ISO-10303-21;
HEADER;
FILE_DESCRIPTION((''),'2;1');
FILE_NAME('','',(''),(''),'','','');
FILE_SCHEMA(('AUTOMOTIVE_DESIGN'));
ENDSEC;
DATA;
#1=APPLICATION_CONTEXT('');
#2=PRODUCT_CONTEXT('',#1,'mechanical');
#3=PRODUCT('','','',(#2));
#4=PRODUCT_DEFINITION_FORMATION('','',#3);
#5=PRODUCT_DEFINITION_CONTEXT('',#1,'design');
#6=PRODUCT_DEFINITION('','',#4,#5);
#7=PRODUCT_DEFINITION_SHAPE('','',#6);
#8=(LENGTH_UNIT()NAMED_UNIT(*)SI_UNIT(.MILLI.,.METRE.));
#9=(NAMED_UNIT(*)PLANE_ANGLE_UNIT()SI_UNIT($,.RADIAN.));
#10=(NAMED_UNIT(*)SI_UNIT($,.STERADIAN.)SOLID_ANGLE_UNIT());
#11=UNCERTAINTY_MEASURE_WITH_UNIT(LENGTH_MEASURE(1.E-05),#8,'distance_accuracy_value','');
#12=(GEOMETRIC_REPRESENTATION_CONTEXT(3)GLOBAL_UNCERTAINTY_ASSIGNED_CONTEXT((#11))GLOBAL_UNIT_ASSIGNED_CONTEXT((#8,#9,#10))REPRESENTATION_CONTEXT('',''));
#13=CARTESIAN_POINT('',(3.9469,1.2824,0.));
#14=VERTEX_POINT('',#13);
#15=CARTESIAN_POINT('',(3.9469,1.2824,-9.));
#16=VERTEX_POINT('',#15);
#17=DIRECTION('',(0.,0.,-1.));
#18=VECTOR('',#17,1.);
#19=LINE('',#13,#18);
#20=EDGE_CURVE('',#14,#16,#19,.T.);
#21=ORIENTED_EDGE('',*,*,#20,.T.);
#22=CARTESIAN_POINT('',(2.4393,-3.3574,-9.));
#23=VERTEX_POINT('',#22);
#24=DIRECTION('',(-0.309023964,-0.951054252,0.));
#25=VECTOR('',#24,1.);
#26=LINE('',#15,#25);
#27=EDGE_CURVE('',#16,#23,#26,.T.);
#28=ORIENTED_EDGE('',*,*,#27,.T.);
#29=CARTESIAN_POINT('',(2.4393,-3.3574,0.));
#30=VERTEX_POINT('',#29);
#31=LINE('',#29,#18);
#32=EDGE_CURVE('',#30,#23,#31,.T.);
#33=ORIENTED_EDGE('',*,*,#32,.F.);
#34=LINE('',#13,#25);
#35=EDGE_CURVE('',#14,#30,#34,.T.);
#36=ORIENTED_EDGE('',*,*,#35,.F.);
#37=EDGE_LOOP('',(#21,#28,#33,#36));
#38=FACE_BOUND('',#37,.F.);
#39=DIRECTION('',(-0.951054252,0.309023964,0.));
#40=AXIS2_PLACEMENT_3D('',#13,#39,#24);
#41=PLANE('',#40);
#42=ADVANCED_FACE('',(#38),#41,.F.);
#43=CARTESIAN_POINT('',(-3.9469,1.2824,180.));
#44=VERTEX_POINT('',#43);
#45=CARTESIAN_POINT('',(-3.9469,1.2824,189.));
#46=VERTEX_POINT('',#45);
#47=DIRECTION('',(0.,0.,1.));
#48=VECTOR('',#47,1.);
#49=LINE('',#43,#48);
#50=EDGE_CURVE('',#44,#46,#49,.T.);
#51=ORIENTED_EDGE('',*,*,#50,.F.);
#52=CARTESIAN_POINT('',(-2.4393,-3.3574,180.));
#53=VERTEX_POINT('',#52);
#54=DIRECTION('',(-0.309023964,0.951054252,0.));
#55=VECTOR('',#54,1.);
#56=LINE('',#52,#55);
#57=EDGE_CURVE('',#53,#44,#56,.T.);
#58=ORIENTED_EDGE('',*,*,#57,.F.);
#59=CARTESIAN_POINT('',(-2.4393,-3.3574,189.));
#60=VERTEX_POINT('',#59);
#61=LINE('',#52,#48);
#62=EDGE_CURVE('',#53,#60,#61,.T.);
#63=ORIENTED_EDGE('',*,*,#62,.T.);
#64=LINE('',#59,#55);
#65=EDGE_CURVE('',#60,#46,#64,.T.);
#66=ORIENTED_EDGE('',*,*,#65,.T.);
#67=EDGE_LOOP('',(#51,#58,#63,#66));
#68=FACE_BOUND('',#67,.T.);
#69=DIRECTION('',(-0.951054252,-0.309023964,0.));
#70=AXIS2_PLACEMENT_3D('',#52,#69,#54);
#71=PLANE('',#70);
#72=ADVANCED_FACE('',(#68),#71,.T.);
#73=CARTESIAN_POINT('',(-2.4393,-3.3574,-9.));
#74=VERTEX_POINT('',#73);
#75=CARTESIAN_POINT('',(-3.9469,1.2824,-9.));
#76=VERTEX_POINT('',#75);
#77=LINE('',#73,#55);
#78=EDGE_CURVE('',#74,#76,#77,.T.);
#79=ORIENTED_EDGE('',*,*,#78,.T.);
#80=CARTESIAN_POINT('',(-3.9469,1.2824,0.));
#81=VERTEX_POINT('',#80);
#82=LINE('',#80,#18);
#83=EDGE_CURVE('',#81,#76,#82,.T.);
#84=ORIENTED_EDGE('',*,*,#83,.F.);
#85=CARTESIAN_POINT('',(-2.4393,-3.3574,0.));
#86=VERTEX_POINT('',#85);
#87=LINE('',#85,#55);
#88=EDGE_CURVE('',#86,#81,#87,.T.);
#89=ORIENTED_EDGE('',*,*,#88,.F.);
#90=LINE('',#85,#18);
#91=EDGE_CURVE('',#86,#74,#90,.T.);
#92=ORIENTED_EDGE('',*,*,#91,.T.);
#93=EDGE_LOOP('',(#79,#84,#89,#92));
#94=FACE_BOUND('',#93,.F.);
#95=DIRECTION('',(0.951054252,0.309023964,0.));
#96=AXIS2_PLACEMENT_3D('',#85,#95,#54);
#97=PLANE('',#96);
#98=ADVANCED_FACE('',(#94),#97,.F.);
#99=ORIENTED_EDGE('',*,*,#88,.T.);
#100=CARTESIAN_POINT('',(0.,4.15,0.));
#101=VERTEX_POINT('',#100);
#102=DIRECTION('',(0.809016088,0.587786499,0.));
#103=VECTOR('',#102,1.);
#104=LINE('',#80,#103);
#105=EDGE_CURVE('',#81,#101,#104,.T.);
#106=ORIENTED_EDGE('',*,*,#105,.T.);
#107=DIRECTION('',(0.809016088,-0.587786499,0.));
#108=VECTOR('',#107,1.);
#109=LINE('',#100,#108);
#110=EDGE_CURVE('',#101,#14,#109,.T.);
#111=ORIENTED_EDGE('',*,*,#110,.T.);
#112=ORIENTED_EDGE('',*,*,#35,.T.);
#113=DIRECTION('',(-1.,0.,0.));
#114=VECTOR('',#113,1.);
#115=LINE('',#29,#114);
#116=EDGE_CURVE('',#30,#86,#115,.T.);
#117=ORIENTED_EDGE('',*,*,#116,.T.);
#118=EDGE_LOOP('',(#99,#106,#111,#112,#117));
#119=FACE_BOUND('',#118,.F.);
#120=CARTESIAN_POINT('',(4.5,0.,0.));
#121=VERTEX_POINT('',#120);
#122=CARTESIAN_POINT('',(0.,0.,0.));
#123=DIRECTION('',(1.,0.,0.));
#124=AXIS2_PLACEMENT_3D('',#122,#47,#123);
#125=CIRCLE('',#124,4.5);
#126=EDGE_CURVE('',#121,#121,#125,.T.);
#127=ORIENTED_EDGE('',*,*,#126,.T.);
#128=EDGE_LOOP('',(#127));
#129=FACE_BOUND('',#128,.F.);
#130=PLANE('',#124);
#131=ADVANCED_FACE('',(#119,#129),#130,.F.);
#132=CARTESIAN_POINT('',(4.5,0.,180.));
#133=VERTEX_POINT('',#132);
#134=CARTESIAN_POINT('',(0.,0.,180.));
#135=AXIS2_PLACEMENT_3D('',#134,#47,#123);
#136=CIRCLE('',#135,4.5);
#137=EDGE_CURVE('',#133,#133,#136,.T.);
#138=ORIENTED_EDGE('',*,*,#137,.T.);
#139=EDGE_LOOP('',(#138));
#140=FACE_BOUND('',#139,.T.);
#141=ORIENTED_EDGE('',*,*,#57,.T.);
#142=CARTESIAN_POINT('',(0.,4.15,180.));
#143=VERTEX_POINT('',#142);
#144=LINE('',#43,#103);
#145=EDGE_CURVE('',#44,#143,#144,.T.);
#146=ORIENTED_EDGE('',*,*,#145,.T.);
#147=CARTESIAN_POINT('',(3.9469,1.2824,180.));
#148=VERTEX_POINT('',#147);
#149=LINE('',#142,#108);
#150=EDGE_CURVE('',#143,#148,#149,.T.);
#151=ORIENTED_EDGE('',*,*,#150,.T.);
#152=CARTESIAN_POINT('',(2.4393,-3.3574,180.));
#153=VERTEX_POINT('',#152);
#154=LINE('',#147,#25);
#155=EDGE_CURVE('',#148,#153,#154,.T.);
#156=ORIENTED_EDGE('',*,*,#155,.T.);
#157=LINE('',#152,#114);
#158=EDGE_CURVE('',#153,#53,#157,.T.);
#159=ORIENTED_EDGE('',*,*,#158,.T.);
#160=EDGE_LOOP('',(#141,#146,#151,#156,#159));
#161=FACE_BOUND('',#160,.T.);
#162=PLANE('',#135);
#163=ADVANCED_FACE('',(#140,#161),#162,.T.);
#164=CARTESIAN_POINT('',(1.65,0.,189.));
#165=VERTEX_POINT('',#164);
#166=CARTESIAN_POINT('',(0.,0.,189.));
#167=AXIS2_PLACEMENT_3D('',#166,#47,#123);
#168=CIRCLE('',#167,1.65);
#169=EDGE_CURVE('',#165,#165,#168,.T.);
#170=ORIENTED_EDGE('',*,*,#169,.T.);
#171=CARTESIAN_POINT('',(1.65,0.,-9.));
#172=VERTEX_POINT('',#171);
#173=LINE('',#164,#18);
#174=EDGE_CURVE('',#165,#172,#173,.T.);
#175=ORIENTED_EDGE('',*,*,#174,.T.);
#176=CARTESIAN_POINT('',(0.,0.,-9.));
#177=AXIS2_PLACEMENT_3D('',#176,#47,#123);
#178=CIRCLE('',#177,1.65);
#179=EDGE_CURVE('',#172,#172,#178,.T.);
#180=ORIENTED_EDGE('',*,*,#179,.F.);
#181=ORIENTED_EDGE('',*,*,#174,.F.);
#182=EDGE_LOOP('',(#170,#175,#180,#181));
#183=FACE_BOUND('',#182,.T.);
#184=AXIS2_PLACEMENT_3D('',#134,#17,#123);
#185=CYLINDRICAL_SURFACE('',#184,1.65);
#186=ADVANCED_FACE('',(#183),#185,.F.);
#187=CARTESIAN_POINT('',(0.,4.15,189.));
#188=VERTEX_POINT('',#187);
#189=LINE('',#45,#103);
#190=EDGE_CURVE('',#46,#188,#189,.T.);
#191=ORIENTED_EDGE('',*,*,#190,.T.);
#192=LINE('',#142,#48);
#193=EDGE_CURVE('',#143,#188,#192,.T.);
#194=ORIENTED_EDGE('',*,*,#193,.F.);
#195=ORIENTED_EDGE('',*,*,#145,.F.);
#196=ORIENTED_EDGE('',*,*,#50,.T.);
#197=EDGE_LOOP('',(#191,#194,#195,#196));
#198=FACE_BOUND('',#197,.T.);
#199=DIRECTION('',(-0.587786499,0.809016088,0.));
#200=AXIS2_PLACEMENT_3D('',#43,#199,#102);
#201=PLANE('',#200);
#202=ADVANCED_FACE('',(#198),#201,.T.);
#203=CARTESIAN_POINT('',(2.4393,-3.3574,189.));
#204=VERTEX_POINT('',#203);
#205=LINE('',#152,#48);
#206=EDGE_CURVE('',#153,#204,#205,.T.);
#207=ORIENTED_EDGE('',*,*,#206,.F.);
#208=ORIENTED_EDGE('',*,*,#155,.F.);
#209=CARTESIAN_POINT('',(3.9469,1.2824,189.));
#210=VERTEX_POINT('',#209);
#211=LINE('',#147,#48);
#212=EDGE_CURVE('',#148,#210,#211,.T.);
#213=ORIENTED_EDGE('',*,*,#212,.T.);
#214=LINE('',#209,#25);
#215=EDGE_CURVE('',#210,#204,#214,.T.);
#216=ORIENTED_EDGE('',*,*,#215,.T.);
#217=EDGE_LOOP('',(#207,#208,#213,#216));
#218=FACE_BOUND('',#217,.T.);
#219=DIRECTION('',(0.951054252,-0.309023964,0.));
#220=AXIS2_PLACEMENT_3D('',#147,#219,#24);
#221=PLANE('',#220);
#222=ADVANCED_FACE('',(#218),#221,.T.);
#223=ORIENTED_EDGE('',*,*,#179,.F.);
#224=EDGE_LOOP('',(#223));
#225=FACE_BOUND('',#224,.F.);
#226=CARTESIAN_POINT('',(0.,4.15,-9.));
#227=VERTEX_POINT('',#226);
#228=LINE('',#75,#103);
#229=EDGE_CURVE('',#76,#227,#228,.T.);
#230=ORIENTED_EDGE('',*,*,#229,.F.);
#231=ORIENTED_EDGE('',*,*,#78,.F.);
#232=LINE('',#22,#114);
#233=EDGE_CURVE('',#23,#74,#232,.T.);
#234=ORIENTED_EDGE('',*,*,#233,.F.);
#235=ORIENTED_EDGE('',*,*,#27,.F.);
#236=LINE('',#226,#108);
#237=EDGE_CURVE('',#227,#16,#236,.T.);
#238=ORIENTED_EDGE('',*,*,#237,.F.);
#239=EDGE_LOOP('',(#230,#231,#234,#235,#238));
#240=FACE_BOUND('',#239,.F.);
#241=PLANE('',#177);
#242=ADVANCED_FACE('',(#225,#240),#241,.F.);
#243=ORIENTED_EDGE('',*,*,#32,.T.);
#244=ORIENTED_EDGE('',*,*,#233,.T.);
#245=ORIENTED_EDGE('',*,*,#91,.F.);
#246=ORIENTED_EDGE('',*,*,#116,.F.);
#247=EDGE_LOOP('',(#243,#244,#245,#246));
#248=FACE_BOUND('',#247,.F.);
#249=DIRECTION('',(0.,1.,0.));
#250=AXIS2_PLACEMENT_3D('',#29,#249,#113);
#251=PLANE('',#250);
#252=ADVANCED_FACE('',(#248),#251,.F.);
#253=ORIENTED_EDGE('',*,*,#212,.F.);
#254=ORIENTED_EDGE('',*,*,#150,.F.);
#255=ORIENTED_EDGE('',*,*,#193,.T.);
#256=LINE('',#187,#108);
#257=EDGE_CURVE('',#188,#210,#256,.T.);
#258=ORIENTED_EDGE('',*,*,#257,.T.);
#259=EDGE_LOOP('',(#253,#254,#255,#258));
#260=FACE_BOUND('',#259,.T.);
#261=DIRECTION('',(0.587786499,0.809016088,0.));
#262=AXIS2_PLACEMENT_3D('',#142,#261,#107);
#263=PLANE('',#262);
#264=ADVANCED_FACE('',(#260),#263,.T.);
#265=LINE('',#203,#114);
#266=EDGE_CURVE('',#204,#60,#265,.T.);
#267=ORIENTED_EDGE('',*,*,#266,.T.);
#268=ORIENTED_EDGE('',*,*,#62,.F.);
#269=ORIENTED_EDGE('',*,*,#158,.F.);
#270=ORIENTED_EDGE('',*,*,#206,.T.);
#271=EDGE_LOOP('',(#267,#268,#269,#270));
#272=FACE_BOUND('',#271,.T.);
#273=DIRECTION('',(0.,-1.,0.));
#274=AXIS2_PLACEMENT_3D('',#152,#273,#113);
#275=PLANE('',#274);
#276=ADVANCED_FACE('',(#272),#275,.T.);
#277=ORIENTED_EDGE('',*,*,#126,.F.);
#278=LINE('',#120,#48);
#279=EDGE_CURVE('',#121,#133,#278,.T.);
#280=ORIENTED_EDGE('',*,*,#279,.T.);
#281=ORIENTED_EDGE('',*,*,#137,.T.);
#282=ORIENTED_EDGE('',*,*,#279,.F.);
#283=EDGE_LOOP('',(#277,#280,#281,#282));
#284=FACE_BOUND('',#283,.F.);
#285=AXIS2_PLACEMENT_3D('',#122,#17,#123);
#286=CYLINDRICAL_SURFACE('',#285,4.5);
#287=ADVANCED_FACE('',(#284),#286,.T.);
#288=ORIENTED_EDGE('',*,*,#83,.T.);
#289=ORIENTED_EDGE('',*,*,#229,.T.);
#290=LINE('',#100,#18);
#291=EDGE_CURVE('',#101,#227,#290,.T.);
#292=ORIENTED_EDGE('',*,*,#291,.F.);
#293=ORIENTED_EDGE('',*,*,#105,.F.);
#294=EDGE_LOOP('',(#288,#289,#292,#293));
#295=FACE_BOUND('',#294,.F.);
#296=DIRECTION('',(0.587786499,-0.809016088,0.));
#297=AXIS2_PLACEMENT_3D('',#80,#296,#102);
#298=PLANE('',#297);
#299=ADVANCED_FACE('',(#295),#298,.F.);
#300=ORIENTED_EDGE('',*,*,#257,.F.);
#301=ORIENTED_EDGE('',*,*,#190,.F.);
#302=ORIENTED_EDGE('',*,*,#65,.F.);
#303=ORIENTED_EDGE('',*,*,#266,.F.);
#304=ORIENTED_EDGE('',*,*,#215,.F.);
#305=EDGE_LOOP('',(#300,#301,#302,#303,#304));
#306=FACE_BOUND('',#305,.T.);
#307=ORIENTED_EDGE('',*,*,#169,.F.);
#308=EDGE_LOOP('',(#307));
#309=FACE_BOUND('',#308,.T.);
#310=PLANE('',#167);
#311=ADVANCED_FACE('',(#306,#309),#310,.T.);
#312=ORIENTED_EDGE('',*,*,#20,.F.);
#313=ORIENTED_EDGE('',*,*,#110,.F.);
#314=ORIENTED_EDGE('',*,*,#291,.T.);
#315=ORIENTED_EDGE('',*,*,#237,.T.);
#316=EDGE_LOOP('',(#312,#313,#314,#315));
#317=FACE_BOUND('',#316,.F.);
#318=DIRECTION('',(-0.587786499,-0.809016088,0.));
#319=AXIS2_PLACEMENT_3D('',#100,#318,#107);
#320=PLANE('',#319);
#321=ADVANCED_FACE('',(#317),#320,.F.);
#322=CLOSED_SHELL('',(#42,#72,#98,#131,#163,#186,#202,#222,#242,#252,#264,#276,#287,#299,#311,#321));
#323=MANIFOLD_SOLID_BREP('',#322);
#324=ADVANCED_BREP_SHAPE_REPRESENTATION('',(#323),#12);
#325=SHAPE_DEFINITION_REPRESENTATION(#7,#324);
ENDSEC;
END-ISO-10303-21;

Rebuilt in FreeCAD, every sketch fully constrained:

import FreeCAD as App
import Part
import Sketcher
Q = App.Units.Quantity


def add_polygon(sketch, points):
    """Adds a closed chain of lines whose ends are joined by coincident constraints."""
    first, n = sketch.GeometryCount, len(points)
    for a, b in zip(points, points[1:] + points[:1]):
        sketch.addGeometry(Part.LineSegment(App.Vector(*a, 0), App.Vector(*b, 0)), False)
    for i in range(n):
        sketch.addConstraint(Sketcher.Constraint("Coincident", first + i, 2, first + (i + 1) % n, 1))

doc = App.newDocument("Part")
params = doc.addObject("Spreadsheet::Sheet", "Params")
for row, (alias, value) in enumerate([
    ("sketch1_diameter", "9 mm"),
    ("sketch1_diameter2", "3.3 mm"),
    ("pad1_length", "180 mm"),
    ("sketch2_diameter", "3.3 mm"),
    ("pad2_length", "9 mm"),
    ("sketch3_diameter", "3.3 mm"),
    ("pad3_length", "9 mm"),
], start=1):
    params.set(f"A{row}", alias)
    params.set(f"B{row}", "=" + value)
    params.setAlias(f"B{row}", alias)

body = doc.addObject("PartDesign::Body", "Body")

sketch1 = doc.addObject("Sketcher::SketchObject", "Sketch")
body.addObject(sketch1)
sketch1.AttachmentSupport = (doc.XY_Plane, [""])
sketch1.MapMode = "FlatFace"
sketch1.addGeometry(Part.Circle(App.Vector(0, 0, 0), App.Vector(0, 0, 1), 4.5), False)
sketch1.addGeometry(Part.Circle(App.Vector(0, 0, 0), App.Vector(0, 0, 1), 1.6), False)
sketch1.addConstraint(Sketcher.Constraint("Coincident", 0, 3, -1, 1))
sketch1.addConstraint(Sketcher.Constraint("Coincident", 1, 3, -1, 1))
sketch1.addConstraint(Sketcher.Constraint("Diameter", 0, 9.0))
sketch1.addConstraint(Sketcher.Constraint("Diameter", 1, 3.3))
sketch1.setExpression("Constraints[2]", "Params.sketch1_diameter")
sketch1.setExpression("Constraints[3]", "Params.sketch1_diameter2")
pad1 = doc.addObject("PartDesign::Pad", "Pad")
body.addObject(pad1)
pad1.Profile = sketch1
pad1.setExpression("Length", "Params.pad1_length")

sketch2 = doc.addObject("Sketcher::SketchObject", "Sketch001")
body.addObject(sketch2)
sketch2.AttachmentSupport = (doc.XY_Plane, [""])
sketch2.MapMode = "FlatFace"
add_polygon(sketch2, [(3.9, 1.3), (0, 4.2), (-3.9, 1.3), (-2.4, -3.4), (2.4, -3.4)])
sketch2.addGeometry(Part.Circle(App.Vector(0, 0, 0), App.Vector(0, 0, 1), 1.6), False)
sketch2.addConstraint(Sketcher.Constraint("Horizontal", 3))
sketch2.addConstraint(Sketcher.Constraint("Coincident", 5, 3, -1, 1))
sketch2.addConstraint(Sketcher.Constraint("Symmetric", 1, 2, 4, 2, -2))
sketch2.addConstraint(Sketcher.Constraint("PointOnObject", 0, 2, -2))
sketch2.addConstraint(Sketcher.Constraint("Equal", 1, 2))
sketch2.addConstraint(Sketcher.Constraint("Equal", 2, 4))
sketch2.addConstraint(Sketcher.Constraint("Diameter", 5, 3.3))
sketch2.addConstraint(Sketcher.Constraint("Angle", 0, Q("144 deg")))
sketch2.addConstraint(Sketcher.Constraint("Angle", 2, Q("-71.9996 deg")))
sketch2.addConstraint(Sketcher.Constraint("DistanceY", -1, 1, 0, 2, 4.15))
sketch2.addConstraint(Sketcher.Constraint("DistanceX", 3, 1, 3, 2, 4.8786))
sketch2.setExpression("Constraints[11]", "Params.sketch2_diameter")
pad2 = doc.addObject("PartDesign::Pad", "Pad001")
body.addObject(pad2)
pad2.Profile = sketch2
pad2.setExpression("Length", "Params.pad2_length")
pad2.Reversed = True

sketch3 = doc.addObject("Sketcher::SketchObject", "Sketch002")
body.addObject(sketch3)
sketch3.AttachmentSupport = (doc.XY_Plane, [""])
sketch3.MapMode = "FlatFace"
sketch3.AttachmentOffset = App.Placement(App.Vector(0, 0, 180), App.Rotation())
add_polygon(sketch3, [(3.9, 1.3), (0, 4.2), (-3.9, 1.3), (-2.4, -3.4), (2.4, -3.4)])
sketch3.addGeometry(Part.Circle(App.Vector(0, 0, 0), App.Vector(0, 0, 1), 1.6), False)
sketch3.addConstraint(Sketcher.Constraint("Horizontal", 3))
sketch3.addConstraint(Sketcher.Constraint("Coincident", 5, 3, -1, 1))
sketch3.addConstraint(Sketcher.Constraint("Symmetric", 1, 2, 4, 2, -2))
sketch3.addConstraint(Sketcher.Constraint("PointOnObject", 0, 2, -2))
sketch3.addConstraint(Sketcher.Constraint("Equal", 1, 2))
sketch3.addConstraint(Sketcher.Constraint("Equal", 2, 4))
sketch3.addConstraint(Sketcher.Constraint("Diameter", 5, 3.3))
sketch3.addConstraint(Sketcher.Constraint("Angle", 0, Q("144 deg")))
sketch3.addConstraint(Sketcher.Constraint("Angle", 2, Q("-71.9996 deg")))
sketch3.addConstraint(Sketcher.Constraint("DistanceY", -1, 1, 0, 2, 4.15))
sketch3.addConstraint(Sketcher.Constraint("DistanceX", 3, 1, 3, 2, 4.8786))
sketch3.setExpression("Constraints[11]", "Params.sketch3_diameter")
pad3 = doc.addObject("PartDesign::Pad", "Pad002")
body.addObject(pad3)
pad3.Profile = sketch3
pad3.setExpression("Length", "Params.pad3_length")

doc.recompute()
